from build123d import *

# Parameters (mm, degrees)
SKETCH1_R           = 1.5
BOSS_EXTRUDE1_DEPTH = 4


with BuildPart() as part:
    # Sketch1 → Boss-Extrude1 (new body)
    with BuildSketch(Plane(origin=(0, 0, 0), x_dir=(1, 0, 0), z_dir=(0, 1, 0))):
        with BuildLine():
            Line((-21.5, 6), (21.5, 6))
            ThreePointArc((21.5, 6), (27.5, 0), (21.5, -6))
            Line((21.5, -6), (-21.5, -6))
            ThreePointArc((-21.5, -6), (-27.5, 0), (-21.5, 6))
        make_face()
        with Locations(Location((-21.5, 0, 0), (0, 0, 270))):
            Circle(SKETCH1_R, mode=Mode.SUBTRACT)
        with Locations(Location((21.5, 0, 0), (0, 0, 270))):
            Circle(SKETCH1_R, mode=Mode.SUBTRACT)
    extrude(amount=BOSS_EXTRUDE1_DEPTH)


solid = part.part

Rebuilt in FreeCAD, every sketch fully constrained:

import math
import FreeCAD as App
import Part
import Sketcher

V = App.Vector
Q = App.Units.Quantity

doc = App.newDocument("Part")
params = doc.addObject("Spreadsheet::Sheet", "Params")
for row, (alias, value) in enumerate([
    ("sketch1_diameter", "3 mm"),
    ("sketch1_radius", "6 mm"),
    ("sketch1_width", "43 mm"),
    ("pad1_length", "4 mm"),
], start=1):
    params.set(f"A{row}", alias)
    params.set(f"B{row}", "=" + value)
    params.setAlias(f"B{row}", alias)

body = doc.addObject("PartDesign::Body", "Body")

sketch1 = body.newObject("Sketcher::SketchObject", "Sketch")
sketch1.AttachmentSupport = (doc.getObject("XZ_Plane"), [""])
sketch1.MapMode = "FlatFace"
sketch1.addGeometry([
    Part.LineSegment(V(21.5, -6, 0), V(-21.5, -6, 0)),
    Part.ArcOfCircle(Part.Circle(V(-21.5, 0, 0), V(0, 0, 1), 6), math.radians(90), math.radians(270)),
    Part.LineSegment(V(-21.5, 6, 0), V(21.5, 6, 0)),
    Part.ArcOfCircle(Part.Circle(V(21.5, 0, 0), V(0, 0, 1), 6), math.radians(-90), math.radians(90)),
    Part.Circle(V(21.5, 0, 0), V(0, 0, 1), 1.5),
    Part.Circle(V(-21.5, 0, 0), V(0, 0, 1), 1.5),
], False)
sketch1.addConstraint([
    Sketcher.Constraint("Tangent", 0, 2, 1, 2),
    Sketcher.Constraint("Tangent", 1, 1, 2, 1),
    Sketcher.Constraint("Tangent", 2, 2, 3, 2),
    Sketcher.Constraint("Tangent", 3, 1, 0, 1),
    Sketcher.Constraint("Horizontal", 0),
    Sketcher.Constraint("Horizontal", 2),
    Sketcher.Constraint("Coincident", 4, 3, 3, 3),
    Sketcher.Constraint("Coincident", 5, 3, 1, 3),
    Sketcher.Constraint("Equal", 4, 5),
    Sketcher.Constraint("Symmetric", 1, 3, 3, 3, -1, 1),
    Sketcher.Constraint("Diameter", 4, Q("3 mm")),
    Sketcher.Constraint("Radius", 1, Q("6 mm")),
    Sketcher.Constraint("DistanceX", 0, 2, 0, 1, Q("43 mm")),
])
sketch1.setExpression("Constraints[10]", "Params.sketch1_diameter")
sketch1.setExpression("Constraints[11]", "Params.sketch1_radius")
sketch1.setExpression("Constraints[12]", "Params.sketch1_width")
pad1 = body.newObject("PartDesign::Pad", "Pad")
pad1.Profile = sketch1
pad1.setExpression("Length", "Params.pad1_length")
pad1.Reversed = True

doc.recompute()
